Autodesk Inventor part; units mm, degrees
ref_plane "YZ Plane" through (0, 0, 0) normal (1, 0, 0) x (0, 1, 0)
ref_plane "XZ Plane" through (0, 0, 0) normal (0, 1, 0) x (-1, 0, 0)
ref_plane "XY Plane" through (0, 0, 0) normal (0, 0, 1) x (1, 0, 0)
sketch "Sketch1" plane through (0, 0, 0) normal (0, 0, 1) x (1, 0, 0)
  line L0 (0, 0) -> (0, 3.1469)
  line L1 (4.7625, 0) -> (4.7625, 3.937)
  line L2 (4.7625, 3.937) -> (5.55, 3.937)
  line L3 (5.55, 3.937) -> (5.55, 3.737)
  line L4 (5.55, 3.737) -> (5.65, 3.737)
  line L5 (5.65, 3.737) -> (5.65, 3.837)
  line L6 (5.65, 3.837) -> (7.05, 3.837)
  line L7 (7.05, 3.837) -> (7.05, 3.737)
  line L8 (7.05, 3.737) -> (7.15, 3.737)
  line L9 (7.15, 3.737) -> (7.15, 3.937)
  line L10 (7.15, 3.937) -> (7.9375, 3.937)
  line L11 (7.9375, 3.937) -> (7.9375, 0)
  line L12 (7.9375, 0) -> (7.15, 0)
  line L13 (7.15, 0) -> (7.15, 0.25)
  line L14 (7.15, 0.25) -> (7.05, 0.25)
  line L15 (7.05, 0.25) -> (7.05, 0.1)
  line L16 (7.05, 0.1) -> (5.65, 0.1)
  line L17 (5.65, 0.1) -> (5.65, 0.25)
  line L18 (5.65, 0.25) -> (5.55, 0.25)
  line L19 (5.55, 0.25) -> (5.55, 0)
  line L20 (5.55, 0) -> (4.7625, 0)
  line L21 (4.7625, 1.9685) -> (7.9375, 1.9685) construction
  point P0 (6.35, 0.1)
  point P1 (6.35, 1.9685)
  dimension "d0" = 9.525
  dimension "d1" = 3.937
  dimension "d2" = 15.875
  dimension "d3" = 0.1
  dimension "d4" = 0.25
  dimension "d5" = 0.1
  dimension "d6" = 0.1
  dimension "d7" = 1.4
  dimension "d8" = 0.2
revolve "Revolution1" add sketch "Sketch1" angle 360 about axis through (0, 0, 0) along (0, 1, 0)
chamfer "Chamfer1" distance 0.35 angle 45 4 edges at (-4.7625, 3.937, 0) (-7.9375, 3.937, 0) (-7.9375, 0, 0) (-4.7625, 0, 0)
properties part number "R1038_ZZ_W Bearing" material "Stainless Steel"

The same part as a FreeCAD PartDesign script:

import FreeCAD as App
import Part
import Sketcher

V = App.Vector
Q = App.Units.Quantity


def edges_at(feature, points):
    """Names of the edges that pass closest to the given points."""
    edges = feature.Shape.Edges
    near = lambda p: min(range(len(edges)), key=lambda i: edges[i].distToShape(Part.Vertex(*p))[0])
    return sorted({f"Edge{near(p) + 1}" for p in points})

doc = App.newDocument("Part")
params = doc.addObject("Spreadsheet::Sheet", "Params")
for row, (alias, value) in enumerate([
    ("sketch1_width", "0.1 mm"),
    ("sketch1_width2", "1.4 mm"),
    ("sketch1_height", "0.2 mm"),
    ("sketch1_height2", "0.25 mm"),
    ("revolution_angle", "360 deg"),
    ("chamfer_size", "0.35 mm"),
], start=1):
    params.set(f"A{row}", alias)
    params.set(f"B{row}", "=" + value)
    params.setAlias(f"B{row}", alias)

body = doc.addObject("PartDesign::Body", "Body")

# Sketch on XY plane
sketch1 = doc.addObject("Sketcher::SketchObject", "Sketch")
body.addObject(sketch1)
sketch1.AttachmentSupport = (doc.XY_Plane, [""])
sketch1.MapMode = "FlatFace"
sketch1.addGeometry(Part.LineSegment(V(4.76, 3.94, 0), V(4.76, 0, 0)), False)
sketch1.addGeometry(Part.LineSegment(V(4.76, 0, 0), V(5.55, 0, 0)), False)
sketch1.addGeometry(Part.LineSegment(V(5.55, 0, 0), V(5.55, 0.25, 0)), False)
sketch1.addGeometry(Part.LineSegment(V(5.55, 0.25, 0), V(5.65, 0.25, 0)), False)
sketch1.addGeometry(Part.LineSegment(V(5.65, 0.25, 0), V(5.65, 0.1, 0)), False)
sketch1.addGeometry(Part.LineSegment(V(5.65, 0.1, 0), V(7.05, 0.1, 0)), False)
sketch1.addGeometry(Part.LineSegment(V(7.05, 0.1, 0), V(7.05, 0.25, 0)), False)
sketch1.addGeometry(Part.LineSegment(V(7.05, 0.25, 0), V(7.15, 0.25, 0)), False)
sketch1.addGeometry(Part.LineSegment(V(7.15, 0.25, 0), V(7.15, 0, 0)), False)
sketch1.addGeometry(Part.LineSegment(V(7.15, 0, 0), V(7.94, 0, 0)), False)
sketch1.addGeometry(Part.LineSegment(V(7.94, 0, 0), V(7.94, 3.94, 0)), False)
sketch1.addGeometry(Part.LineSegment(V(7.94, 3.94, 0), V(7.15, 3.94, 0)), False)
sketch1.addGeometry(Part.LineSegment(V(7.15, 3.94, 0), V(7.15, 3.74, 0)), False)
sketch1.addGeometry(Part.LineSegment(V(7.15, 3.74, 0), V(7.05, 3.74, 0)), False)
sketch1.addGeometry(Part.LineSegment(V(7.05, 3.74, 0), V(7.05, 3.84, 0)), False)
sketch1.addGeometry(Part.LineSegment(V(7.05, 3.84, 0), V(5.65, 3.84, 0)), False)
sketch1.addGeometry(Part.LineSegment(V(5.65, 3.84, 0), V(5.65, 3.74, 0)), False)
sketch1.addGeometry(Part.LineSegment(V(5.65, 3.74, 0), V(5.55, 3.74, 0)), False)
sketch1.addGeometry(Part.LineSegment(V(5.55, 3.74, 0), V(5.55, 3.94, 0)), False)
sketch1.addGeometry(Part.LineSegment(V(5.55, 3.94, 0), V(4.76, 3.94, 0)), False)
sketch1.addConstraint(Sketcher.Constraint("Coincident", 0, 2, 1, 1))
sketch1.addConstraint(Sketcher.Constraint("Coincident", 1, 2, 2, 1))
sketch1.addConstraint(Sketcher.Constraint("Coincident", 2, 2, 3, 1))
sketch1.addConstraint(Sketcher.Constraint("Coincident", 3, 2, 4, 1))
sketch1.addConstraint(Sketcher.Constraint("Coincident", 4, 2, 5, 1))
sketch1.addConstraint(Sketcher.Constraint("Coincident", 5, 2, 6, 1))
sketch1.addConstraint(Sketcher.Constraint("Coincident", 6, 2, 7, 1))
sketch1.addConstraint(Sketcher.Constraint("Coincident", 7, 2, 8, 1))
sketch1.addConstraint(Sketcher.Constraint("Coincident", 8, 2, 9, 1))
sketch1.addConstraint(Sketcher.Constraint("Coincident", 9, 2, 10, 1))
sketch1.addConstraint(Sketcher.Constraint("Coincident", 10, 2, 11, 1))
sketch1.addConstraint(Sketcher.Constraint("Coincident", 11, 2, 12, 1))
sketch1.addConstraint(Sketcher.Constraint("Coincident", 12, 2, 13, 1))
sketch1.addConstraint(Sketcher.Constraint("Coincident", 13, 2, 14, 1))
sketch1.addConstraint(Sketcher.Constraint("Coincident", 14, 2, 15, 1))
sketch1.addConstraint(Sketcher.Constraint("Coincident", 15, 2, 16, 1))
sketch1.addConstraint(Sketcher.Constraint("Coincident", 16, 2, 17, 1))
sketch1.addConstraint(Sketcher.Constraint("Coincident", 17, 2, 18, 1))
sketch1.addConstraint(Sketcher.Constraint("Coincident", 18, 2, 19, 1))
sketch1.addConstraint(Sketcher.Constraint("Coincident", 19, 2, 0, 1))
sketch1.addConstraint(Sketcher.Constraint("Vertical", 0))
sketch1.addConstraint(Sketcher.Constraint("Horizontal", 1))
sketch1.addConstraint(Sketcher.Constraint("Vertical", 2))
sketch1.addConstraint(Sketcher.Constraint("Horizontal", 3))
sketch1.addConstraint(Sketcher.Constraint("Vertical", 4))
sketch1.addConstraint(Sketcher.Constraint("Horizontal", 5))
sketch1.addConstraint(Sketcher.Constraint("Vertical", 6))
sketch1.addConstraint(Sketcher.Constraint("Horizontal", 7))
sketch1.addConstraint(Sketcher.Constraint("Vertical", 8))
sketch1.addConstraint(Sketcher.Constraint("Horizontal", 9))
sketch1.addConstraint(Sketcher.Constraint("Vertical", 10))
sketch1.addConstraint(Sketcher.Constraint("Horizontal", 11))
sketch1.addConstraint(Sketcher.Constraint("Vertical", 12))
sketch1.addConstraint(Sketcher.Constraint("Horizontal", 13))
sketch1.addConstraint(Sketcher.Constraint("Vertical", 14))
sketch1.addConstraint(Sketcher.Constraint("Horizontal", 15))
sketch1.addConstraint(Sketcher.Constraint("Vertical", 16))
sketch1.addConstraint(Sketcher.Constraint("Horizontal", 17))
sketch1.addConstraint(Sketcher.Constraint("Vertical", 18))
sketch1.addConstraint(Sketcher.Constraint("Horizontal", 19))
sketch1.addConstraint(Sketcher.Constraint("PointOnObject", 0, 2, -1))
sketch1.addConstraint(Sketcher.Constraint("PointOnObject", 8, 2, -1))
sketch1.addConstraint(Sketcher.Constraint("Horizontal", 3, 2, 6, 2))
sketch1.addConstraint(Sketcher.Constraint("Horizontal", 13, 2, 16, 2))
sketch1.addConstraint(Sketcher.Constraint("Horizontal", 11, 2, 18, 2))
sketch1.addConstraint(Sketcher.Constraint("Vertical", 8, 2, 11, 2))
sketch1.addConstraint(Sketcher.Constraint("Vertical", 6, 2, 13, 2))
sketch1.addConstraint(Sketcher.Constraint("Vertical", 4, 2, 15, 2))
sketch1.addConstraint(Sketcher.Constraint("Vertical", 2, 2, 17, 2))
sketch1.addConstraint(Sketcher.Constraint("Equal", 3, 7))
sketch1.addConstraint(Sketcher.Constraint("Equal", 1, 9))
sketch1.addConstraint(Sketcher.Constraint("Equal", 17, 14))
sketch1.addConstraint(Sketcher.Constraint("DistanceX", 3, 1, 3, 2, Q("0.1 mm")))
sketch1.addConstraint(Sketcher.Constraint("DistanceX", 5, 1, 5, 2, Q("1.4 mm")))
sketch1.addConstraint(Sketcher.Constraint("DistanceY", 12, 2, 12, 1, Q("0.2 mm")))
sketch1.addConstraint(Sketcher.Constraint("DistanceY", 2, 1, 2, 2, Q("0.25 mm")))
sketch1.addConstraint(Sketcher.Constraint("DistanceY", -1, 1, 4, 2, Q("0.1 mm")))
sketch1.addConstraint(Sketcher.Constraint("DistanceY", 0, 2, 0, 1, Q("3.937 mm")))
sketch1.addConstraint(Sketcher.Constraint("DistanceX", -1, 1, 1, 2, Q("5.55 mm")))
sketch1.addConstraint(Sketcher.Constraint("DistanceX", 1, 1, 1, 2, Q("0.7875 mm")))
sketch1.setExpression("Constraints[52]", "Params.sketch1_width")
sketch1.setExpression("Constraints[53]", "Params.sketch1_width2")
sketch1.setExpression("Constraints[54]", "Params.sketch1_height")
sketch1.setExpression("Constraints[55]", "Params.sketch1_height2")
revolution = doc.addObject("PartDesign::Revolution", "Revolution")
body.addObject(revolution)
revolution.Profile = sketch1
revolution.ReferenceAxis = (sketch1, ["V_Axis"])
revolution.setExpression("Angle", "Params.revolution_angle")
doc.recompute()

chamfer = doc.addObject("PartDesign::Chamfer", "Chamfer")
body.addObject(chamfer)
chamfer.Base = (revolution, edges_at(revolution, [
    (-4.763, 3.937, 0),
    (-7.938, 3.937, 0),
    (-7.938, 0, 0),
    (-4.763, 0, 0),
]))
chamfer.setExpression("Size", "Params.chamfer_size")

doc.recompute()
